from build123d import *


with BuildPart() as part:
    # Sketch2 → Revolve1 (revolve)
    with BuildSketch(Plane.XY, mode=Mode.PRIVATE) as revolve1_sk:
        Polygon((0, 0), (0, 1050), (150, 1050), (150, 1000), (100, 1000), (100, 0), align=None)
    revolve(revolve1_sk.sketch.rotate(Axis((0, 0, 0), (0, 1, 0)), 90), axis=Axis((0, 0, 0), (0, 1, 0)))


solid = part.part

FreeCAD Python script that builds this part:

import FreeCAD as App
import Part
import Sketcher
Q = App.Units.Quantity


def add_polygon(sketch, points):
    """Adds a closed chain of lines whose ends are joined by coincident constraints."""
    first, n = sketch.GeometryCount, len(points)
    for a, b in zip(points, points[1:] + points[:1]):
        sketch.addGeometry(Part.LineSegment(App.Vector(*a, 0), App.Vector(*b, 0)), False)
    for i in range(n):
        sketch.addConstraint(Sketcher.Constraint("Coincident", first + i, 2, first + (i + 1) % n, 1))

doc = App.newDocument("Part")
params = doc.addObject("Spreadsheet::Sheet", "Params")
for row, (alias, value) in enumerate([
    ("sketch1_width", "100 mm"),
    ("sketch1_width2", "50 mm"),
    ("sketch1_height", "1050 mm"),
    ("revolution_angle", "360 deg"),
], start=1):
    params.set(f"A{row}", alias)
    params.set(f"B{row}", "=" + value)
    params.setAlias(f"B{row}", alias)

body = doc.addObject("PartDesign::Body", "Body")

sketch1 = doc.addObject("Sketcher::SketchObject", "Sketch")
body.addObject(sketch1)
sketch1.AttachmentSupport = (doc.XY_Plane, [""])
sketch1.MapMode = "FlatFace"
add_polygon(sketch1, [(0, 1050), (0, 0), (100, 0), (100, 1000), (150, 1000), (150, 1050)])
sketch1.addConstraint([
    Sketcher.Constraint("Vertical", 0),
    Sketcher.Constraint("Horizontal", 1),
    Sketcher.Constraint("Vertical", 2),
    Sketcher.Constraint("Horizontal", 3),
    Sketcher.Constraint("Vertical", 4),
    Sketcher.Constraint("Horizontal", 5),
    Sketcher.Constraint("Coincident", 0, 2, -1, 1),
    Sketcher.Constraint("Equal", 3, 4),
    Sketcher.Constraint("DistanceX", 1, 1, 1, 2, Q("100 mm")),
    Sketcher.Constraint("DistanceX", 3, 1, 3, 2, Q("50 mm")),
    Sketcher.Constraint("DistanceY", 0, 2, 0, 1, Q("1050 mm")),
])
sketch1.setExpression("Constraints[14]", "Params.sketch1_width")
sketch1.setExpression("Constraints[15]", "Params.sketch1_width2")
sketch1.setExpression("Constraints[16]", "Params.sketch1_height")
revolution = doc.addObject("PartDesign::Revolution", "Revolution")
body.addObject(revolution)
revolution.Profile = sketch1
revolution.ReferenceAxis = (sketch1, ["V_Axis"])
revolution.setExpression("Angle", "Params.revolution_angle")

doc.recompute()
